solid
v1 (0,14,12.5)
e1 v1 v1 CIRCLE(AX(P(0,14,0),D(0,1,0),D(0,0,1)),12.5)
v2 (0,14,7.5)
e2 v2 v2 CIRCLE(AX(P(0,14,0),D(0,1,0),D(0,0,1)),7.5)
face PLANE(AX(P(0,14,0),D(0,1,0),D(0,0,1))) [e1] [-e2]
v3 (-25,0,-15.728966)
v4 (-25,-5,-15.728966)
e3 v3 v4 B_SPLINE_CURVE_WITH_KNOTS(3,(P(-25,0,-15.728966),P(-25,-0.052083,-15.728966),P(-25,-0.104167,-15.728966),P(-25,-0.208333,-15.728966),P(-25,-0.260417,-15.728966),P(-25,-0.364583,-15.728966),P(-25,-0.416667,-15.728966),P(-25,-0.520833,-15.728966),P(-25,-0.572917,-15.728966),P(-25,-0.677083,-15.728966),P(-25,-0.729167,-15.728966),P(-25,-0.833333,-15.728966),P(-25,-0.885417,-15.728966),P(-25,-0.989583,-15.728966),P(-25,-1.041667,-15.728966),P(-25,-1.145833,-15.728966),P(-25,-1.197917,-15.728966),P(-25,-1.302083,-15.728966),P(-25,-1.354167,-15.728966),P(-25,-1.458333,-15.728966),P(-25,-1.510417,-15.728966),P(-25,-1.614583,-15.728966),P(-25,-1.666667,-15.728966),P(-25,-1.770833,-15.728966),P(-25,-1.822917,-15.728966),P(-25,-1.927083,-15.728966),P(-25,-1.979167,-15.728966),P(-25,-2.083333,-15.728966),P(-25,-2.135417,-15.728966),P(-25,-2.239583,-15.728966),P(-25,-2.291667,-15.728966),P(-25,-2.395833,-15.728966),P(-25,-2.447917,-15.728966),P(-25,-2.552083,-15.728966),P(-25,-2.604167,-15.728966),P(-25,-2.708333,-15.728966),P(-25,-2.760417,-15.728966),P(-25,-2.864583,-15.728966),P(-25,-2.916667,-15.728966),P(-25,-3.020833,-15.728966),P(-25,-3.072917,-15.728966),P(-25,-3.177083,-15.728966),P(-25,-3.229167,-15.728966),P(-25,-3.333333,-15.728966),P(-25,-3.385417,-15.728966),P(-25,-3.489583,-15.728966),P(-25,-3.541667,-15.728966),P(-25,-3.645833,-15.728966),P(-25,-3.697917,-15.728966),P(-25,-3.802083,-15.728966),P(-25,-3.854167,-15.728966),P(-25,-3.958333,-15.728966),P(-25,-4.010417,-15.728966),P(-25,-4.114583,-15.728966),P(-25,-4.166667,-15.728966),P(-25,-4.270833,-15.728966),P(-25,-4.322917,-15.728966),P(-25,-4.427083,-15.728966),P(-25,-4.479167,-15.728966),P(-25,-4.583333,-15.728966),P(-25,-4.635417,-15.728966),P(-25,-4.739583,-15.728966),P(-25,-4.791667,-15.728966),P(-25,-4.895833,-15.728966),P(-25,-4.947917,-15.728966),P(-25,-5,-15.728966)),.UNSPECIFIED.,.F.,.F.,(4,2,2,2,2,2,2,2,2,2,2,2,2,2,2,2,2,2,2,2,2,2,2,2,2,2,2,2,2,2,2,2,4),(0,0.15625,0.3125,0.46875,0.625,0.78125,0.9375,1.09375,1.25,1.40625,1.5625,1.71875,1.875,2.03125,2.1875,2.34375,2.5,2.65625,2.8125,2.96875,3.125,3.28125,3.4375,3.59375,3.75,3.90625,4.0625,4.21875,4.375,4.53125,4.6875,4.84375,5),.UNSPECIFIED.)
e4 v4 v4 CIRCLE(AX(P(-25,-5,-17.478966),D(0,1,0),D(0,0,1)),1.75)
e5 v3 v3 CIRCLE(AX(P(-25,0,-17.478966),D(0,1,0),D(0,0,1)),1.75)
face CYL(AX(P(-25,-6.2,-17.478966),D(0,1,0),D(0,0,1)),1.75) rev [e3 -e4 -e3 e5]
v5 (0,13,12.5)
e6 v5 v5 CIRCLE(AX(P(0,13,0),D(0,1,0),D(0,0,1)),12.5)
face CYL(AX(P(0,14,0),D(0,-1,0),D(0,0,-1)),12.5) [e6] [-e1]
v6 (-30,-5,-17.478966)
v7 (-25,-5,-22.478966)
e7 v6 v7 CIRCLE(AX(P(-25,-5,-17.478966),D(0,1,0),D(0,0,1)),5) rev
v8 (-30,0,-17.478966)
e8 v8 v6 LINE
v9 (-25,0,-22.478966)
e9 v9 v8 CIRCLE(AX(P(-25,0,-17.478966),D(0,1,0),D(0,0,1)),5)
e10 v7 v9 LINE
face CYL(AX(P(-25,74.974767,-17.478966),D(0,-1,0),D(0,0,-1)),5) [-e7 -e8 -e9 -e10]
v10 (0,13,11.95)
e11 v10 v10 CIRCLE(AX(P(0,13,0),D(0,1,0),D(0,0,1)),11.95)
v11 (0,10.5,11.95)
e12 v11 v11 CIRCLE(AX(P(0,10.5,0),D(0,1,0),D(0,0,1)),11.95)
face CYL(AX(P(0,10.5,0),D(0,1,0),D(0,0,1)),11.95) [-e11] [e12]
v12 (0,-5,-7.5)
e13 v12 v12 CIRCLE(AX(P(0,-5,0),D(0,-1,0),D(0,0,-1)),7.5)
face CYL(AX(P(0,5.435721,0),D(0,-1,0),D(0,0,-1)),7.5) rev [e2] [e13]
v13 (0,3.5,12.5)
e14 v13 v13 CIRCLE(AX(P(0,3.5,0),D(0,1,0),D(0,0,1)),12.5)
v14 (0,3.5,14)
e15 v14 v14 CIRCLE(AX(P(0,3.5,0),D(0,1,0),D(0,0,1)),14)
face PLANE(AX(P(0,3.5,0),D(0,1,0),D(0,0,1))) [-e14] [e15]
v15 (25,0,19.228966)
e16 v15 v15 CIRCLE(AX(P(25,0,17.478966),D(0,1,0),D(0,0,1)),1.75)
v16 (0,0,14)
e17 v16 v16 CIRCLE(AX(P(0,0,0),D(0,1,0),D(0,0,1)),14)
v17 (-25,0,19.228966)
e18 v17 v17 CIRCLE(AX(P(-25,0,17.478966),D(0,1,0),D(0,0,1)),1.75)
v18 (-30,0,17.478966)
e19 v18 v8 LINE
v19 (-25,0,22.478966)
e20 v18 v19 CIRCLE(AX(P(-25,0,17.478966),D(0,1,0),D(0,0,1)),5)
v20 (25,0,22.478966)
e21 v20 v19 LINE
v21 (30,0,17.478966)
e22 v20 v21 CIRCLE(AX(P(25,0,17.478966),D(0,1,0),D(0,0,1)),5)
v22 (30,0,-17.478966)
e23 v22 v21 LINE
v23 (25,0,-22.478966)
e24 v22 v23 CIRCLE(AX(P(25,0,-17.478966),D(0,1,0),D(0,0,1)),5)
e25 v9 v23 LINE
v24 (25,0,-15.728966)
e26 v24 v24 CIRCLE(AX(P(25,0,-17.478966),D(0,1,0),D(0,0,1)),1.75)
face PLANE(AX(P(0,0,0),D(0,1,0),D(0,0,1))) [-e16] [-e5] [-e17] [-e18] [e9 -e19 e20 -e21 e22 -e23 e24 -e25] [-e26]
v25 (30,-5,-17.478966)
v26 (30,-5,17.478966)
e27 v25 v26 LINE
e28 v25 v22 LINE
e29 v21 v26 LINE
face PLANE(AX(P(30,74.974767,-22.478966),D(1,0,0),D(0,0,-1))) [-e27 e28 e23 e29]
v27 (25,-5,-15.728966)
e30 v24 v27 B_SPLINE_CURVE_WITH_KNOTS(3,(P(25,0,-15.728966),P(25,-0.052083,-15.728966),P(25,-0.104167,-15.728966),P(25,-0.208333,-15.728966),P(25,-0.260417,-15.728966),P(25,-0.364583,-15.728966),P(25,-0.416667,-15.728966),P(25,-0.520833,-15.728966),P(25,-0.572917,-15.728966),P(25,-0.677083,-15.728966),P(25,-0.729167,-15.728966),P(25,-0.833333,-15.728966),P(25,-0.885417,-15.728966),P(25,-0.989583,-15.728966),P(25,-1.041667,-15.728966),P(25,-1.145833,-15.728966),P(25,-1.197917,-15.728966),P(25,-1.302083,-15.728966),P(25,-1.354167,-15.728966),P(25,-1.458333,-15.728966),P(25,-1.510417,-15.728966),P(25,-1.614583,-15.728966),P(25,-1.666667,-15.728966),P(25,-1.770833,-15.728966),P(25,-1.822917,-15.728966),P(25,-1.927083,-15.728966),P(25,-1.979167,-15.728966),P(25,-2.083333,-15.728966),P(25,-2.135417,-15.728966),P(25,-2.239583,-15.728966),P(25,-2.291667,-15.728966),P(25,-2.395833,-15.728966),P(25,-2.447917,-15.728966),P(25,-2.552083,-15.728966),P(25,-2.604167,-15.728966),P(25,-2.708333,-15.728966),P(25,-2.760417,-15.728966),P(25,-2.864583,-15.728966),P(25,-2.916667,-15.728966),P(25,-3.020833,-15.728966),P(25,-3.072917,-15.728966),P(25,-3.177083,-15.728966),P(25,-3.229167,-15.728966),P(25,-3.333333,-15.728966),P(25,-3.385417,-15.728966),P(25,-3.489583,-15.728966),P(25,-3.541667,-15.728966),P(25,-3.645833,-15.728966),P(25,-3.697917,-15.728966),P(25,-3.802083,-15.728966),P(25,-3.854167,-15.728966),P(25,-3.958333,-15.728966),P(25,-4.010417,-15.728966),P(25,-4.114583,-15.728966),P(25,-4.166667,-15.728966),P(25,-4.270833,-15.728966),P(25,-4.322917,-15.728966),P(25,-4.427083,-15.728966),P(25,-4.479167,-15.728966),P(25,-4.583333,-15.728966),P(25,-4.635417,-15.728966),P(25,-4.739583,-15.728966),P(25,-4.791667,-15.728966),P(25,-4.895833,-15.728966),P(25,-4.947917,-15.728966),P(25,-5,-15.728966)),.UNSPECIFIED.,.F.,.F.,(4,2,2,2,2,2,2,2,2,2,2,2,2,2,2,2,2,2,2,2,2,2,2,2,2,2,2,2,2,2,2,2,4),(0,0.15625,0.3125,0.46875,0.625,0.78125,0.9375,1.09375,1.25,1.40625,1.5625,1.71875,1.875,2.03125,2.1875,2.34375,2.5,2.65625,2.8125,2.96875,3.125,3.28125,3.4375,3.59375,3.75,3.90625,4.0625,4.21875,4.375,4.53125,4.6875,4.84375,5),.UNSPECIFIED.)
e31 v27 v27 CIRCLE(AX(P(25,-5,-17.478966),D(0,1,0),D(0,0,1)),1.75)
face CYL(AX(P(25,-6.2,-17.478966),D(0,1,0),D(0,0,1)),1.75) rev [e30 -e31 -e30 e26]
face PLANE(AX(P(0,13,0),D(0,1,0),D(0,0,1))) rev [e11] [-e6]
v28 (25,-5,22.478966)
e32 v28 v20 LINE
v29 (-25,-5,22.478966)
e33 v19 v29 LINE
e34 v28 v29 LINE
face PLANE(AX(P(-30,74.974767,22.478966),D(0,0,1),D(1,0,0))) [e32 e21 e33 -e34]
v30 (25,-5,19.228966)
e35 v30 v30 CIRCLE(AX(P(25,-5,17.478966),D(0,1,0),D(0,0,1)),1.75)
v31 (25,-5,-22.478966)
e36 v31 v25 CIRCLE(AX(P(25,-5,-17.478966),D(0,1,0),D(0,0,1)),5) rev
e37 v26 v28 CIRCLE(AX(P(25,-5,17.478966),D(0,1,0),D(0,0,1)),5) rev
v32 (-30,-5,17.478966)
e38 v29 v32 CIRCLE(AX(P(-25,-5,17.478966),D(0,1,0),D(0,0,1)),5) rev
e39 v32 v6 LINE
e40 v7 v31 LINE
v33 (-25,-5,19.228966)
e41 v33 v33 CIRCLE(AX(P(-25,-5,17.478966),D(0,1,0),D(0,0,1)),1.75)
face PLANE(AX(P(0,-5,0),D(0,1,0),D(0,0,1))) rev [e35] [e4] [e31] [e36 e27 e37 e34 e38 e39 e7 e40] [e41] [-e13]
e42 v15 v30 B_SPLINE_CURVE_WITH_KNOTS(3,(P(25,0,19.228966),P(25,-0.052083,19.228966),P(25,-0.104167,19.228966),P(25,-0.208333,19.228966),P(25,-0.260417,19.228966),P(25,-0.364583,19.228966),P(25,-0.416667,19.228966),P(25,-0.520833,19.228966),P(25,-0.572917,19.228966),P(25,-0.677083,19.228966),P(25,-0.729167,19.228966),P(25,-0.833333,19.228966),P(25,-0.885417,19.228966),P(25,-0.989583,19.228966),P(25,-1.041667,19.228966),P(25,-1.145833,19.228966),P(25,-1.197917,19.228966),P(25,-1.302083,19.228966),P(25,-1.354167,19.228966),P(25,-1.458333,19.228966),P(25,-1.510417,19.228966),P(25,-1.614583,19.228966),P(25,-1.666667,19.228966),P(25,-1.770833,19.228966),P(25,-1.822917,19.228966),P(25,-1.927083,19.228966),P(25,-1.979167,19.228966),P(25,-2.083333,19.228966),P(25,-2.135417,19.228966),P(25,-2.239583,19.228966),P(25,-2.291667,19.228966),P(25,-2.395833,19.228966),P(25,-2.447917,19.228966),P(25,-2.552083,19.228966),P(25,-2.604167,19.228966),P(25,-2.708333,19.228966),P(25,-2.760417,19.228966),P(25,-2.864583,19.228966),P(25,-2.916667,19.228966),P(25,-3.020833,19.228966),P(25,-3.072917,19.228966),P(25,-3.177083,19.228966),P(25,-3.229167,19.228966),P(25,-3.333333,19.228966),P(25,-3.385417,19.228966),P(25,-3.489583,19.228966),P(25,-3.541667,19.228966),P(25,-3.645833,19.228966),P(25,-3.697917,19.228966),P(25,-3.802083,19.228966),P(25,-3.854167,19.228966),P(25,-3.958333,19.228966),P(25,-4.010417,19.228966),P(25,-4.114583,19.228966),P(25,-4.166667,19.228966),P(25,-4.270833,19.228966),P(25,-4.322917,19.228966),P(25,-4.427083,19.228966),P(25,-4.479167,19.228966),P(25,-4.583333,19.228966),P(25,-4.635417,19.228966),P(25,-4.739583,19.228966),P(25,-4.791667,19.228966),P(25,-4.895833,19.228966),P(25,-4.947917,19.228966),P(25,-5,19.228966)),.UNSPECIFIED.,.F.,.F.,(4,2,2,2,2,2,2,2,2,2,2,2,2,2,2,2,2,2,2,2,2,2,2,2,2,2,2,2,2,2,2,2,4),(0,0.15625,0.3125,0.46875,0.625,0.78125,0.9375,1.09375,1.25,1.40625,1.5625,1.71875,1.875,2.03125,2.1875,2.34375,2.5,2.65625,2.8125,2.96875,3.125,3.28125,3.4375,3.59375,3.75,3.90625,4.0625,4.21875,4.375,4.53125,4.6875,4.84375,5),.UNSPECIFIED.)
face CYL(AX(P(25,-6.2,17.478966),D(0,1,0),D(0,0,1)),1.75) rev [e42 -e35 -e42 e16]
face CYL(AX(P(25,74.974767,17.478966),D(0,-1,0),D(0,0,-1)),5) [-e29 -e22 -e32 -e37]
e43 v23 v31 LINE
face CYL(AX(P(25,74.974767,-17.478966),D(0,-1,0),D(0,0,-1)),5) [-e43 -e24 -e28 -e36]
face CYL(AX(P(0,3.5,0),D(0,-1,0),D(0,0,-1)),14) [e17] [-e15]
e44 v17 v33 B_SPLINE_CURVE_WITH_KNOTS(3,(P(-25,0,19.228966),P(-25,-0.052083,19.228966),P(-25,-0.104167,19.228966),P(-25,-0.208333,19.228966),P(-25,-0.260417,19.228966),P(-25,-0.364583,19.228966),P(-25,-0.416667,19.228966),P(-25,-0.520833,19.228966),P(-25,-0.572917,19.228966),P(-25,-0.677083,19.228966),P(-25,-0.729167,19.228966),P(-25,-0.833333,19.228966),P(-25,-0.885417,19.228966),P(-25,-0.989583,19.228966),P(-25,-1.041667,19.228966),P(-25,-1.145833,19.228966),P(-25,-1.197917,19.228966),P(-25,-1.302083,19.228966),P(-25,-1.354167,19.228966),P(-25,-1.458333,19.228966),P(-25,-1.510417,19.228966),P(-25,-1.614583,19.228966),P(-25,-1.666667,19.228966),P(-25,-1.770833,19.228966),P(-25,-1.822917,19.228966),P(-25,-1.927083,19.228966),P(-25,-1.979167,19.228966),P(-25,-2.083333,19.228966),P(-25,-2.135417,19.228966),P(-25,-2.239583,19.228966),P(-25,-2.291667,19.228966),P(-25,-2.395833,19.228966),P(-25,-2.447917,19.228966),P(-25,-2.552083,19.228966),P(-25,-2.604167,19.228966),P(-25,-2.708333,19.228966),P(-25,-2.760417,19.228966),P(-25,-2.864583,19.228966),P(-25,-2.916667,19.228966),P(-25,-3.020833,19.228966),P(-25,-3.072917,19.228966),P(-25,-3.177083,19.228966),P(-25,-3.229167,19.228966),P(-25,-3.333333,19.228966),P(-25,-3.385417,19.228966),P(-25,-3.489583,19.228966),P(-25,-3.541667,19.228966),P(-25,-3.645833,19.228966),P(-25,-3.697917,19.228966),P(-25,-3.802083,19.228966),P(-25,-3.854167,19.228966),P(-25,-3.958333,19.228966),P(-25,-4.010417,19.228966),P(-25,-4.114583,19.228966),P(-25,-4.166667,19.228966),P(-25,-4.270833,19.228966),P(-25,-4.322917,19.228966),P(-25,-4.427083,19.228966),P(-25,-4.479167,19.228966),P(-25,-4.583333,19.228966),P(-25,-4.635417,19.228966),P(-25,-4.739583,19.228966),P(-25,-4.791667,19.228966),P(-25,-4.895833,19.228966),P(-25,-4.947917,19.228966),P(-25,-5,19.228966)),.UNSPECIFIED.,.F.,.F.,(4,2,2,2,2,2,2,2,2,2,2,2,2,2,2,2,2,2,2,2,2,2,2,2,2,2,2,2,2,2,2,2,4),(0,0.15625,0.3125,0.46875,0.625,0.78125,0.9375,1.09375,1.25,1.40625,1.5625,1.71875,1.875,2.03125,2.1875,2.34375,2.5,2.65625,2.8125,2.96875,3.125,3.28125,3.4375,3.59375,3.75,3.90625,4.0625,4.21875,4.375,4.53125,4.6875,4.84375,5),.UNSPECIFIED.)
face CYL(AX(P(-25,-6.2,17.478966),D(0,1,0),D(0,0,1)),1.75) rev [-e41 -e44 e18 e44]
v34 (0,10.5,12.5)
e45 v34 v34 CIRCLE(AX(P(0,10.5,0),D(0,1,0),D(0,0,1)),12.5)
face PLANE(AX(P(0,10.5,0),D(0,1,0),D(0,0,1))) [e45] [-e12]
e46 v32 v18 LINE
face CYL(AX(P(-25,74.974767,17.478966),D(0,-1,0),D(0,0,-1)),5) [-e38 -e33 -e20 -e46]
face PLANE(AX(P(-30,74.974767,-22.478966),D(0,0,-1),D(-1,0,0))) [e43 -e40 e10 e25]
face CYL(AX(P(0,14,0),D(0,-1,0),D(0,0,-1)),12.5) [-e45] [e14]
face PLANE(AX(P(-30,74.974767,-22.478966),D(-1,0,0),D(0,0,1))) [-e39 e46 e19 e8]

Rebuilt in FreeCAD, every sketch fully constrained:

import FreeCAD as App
import Part
import Sketcher
from FreeCAD import Vector


def edges_at(feature, points):
    """Names of the edges that pass closest to the given points."""
    edges = feature.Shape.Edges
    near = lambda p: min(range(len(edges)), key=lambda i: edges[i].distToShape(Part.Vertex(*p))[0])
    return sorted({f"Edge{near(p) + 1}" for p in points})

doc = App.newDocument("Part")
body = doc.addObject("PartDesign::Body", "Body")

sketch1 = body.newObject("Sketcher::SketchObject", "Sketch")
sketch1.AttachmentSupport = (doc.getObject("XZ_Plane"), [""])
sketch1.MapMode = "FlatFace"
sketch1.addGeometry(Part.Circle(Vector(0, 0, 0), Vector(0, 0, 1), 12), False)
sketch1.addGeometry(Part.Circle(Vector(0, 0, 0), Vector(0, 0, 1), 10), False)
sketch1.addConstraint(Sketcher.Constraint("Coincident", 0, 3, -1, 1))
sketch1.addConstraint(Sketcher.Constraint("Coincident", 1, 3, -1, 1))
sketch1.addConstraint(Sketcher.Constraint("Diameter", 0, 25.0))
sketch1.addConstraint(Sketcher.Constraint("Diameter", 1, 19.0))
pad1 = body.newObject("PartDesign::Pad", "Pad")
pad1.Profile = sketch1
pad1.Length = 14
pad1.Reversed = True

sketch2 = body.newObject("Sketcher::SketchObject", "Sketch001")
sketch2.AttachmentSupport = (doc.getObject("XZ_Plane"), [""])
sketch2.MapMode = "FlatFace"
sketch2.addGeometry(Part.LineSegment(Vector(32, -24, 0), Vector(32, 24, 0)), False)
sketch2.addGeometry(Part.LineSegment(Vector(32, 24, 0), Vector(-32, 24, 0)), False)
sketch2.addGeometry(Part.LineSegment(Vector(-32, 24, 0), Vector(-32, -24, 0)), False)
sketch2.addGeometry(Part.LineSegment(Vector(-32, -24, 0), Vector(32, -24, 0)), False)
sketch2.addConstraint(Sketcher.Constraint("Coincident", 0, 2, 1, 1))
sketch2.addConstraint(Sketcher.Constraint("Coincident", 1, 2, 2, 1))
sketch2.addConstraint(Sketcher.Constraint("Coincident", 2, 2, 3, 1))
sketch2.addConstraint(Sketcher.Constraint("Coincident", 3, 2, 0, 1))
sketch2.addConstraint(Sketcher.Constraint("Vertical", 0))
sketch2.addConstraint(Sketcher.Constraint("Horizontal", 1))
sketch2.addConstraint(Sketcher.Constraint("Vertical", 2))
sketch2.addConstraint(Sketcher.Constraint("Horizontal", 3))
sketch2.addConstraint(Sketcher.Constraint("Symmetric", 0, 2, 2, 2, -1, 1))
sketch2.addConstraint(Sketcher.Constraint("DistanceX", 1, 2, 1, 1, 64.506169))
sketch2.addConstraint(Sketcher.Constraint("DistanceY", 0, 1, 0, 2, 47.833805))
pad2 = body.newObject("PartDesign::Pad", "Pad001")
pad2.Profile = sketch2
pad2.Length = 5

sketch3 = body.newObject("Sketcher::SketchObject", "Sketch002")
sketch3.AttachmentSupport = (doc.getObject("XZ_Plane"), [""])
sketch3.MapMode = "FlatFace"
sketch3.addGeometry(Part.Circle(Vector(0, 0, 0), Vector(0, 0, 1), 8), False)
sketch3.addConstraint(Sketcher.Constraint("Coincident", 0, 3, -1, 1))
sketch3.addConstraint(Sketcher.Constraint("Diameter", 0, 15.0))
pocket1 = body.newObject("PartDesign::Pocket", "Pocket")
pocket1.Profile = sketch3
pocket1.Length = 5
pocket1.Reversed = True
doc.recompute()

fillet = body.newObject("PartDesign::Fillet", "Fillet")
fillet.Base = (pocket1, edges_at(pocket1, [
    (32.253, -2.5, -23.917),
    (32.253, -2.5, 23.917),
    (-32.253, -2.5, 23.917),
    (-32.253, -2.5, -23.917),
]))
fillet.Radius = 10

sketch4 = body.newObject("Sketcher::SketchObject", "Sketch003")
sketch4.AttachmentSupport = (doc.getObject("XZ_Plane"), [""])
sketch4.MapMode = "FlatFace"
sketch4.addGeometry(Part.Circle(Vector(0, 0, 0), Vector(0, 0, 1), 41), False)
sketch4.addGeometry(Part.Circle(Vector(0, 0, 0), Vector(0, 0, 1), 22), False)
sketch4.addConstraint(Sketcher.Constraint("Coincident", 0, 3, -1, 1))
sketch4.addConstraint(Sketcher.Constraint("Coincident", 1, 3, -1, 1))
sketch4.addConstraint(Sketcher.Constraint("Diameter", 0, 82.678318))
sketch4.addConstraint(Sketcher.Constraint("Diameter", 1, 44.957933))
pocket2 = body.newObject("PartDesign::Pocket", "Pocket001")
pocket2.Profile = sketch4
pocket2.Length = 10
pocket2.Reversed = True

sketch5 = body.newObject("Sketcher::SketchObject", "Sketch004")
sketch5.AttachmentSupport = (doc.getObject("XZ_Plane"), [""])
sketch5.MapMode = "FlatFace"
sketch5.AttachmentOffset = App.Placement(Vector(0, 0, 5), App.Rotation())
sketch5.addGeometry(Part.LineSegment(Vector(30, -22, 0), Vector(30, 22, 0)), False)
sketch5.addGeometry(Part.LineSegment(Vector(30, 22, 0), Vector(-30, 22, 0)), False)
sketch5.addGeometry(Part.LineSegment(Vector(-30, 22, 0), Vector(-30, -22, 0)), False)
sketch5.addGeometry(Part.LineSegment(Vector(-30, -22, 0), Vector(30, -22, 0)), False)
sketch5.addGeometry(Part.Circle(Vector(0, 0, 0), Vector(0, 0, 1), 6), False)
sketch5.addConstraint(Sketcher.Constraint("Coincident", 0, 2, 1, 1))
sketch5.addConstraint(Sketcher.Constraint("Coincident", 1, 2, 2, 1))
sketch5.addConstraint(Sketcher.Constraint("Coincident", 2, 2, 3, 1))
sketch5.addConstraint(Sketcher.Constraint("Coincident", 3, 2, 0, 1))
sketch5.addConstraint(Sketcher.Constraint("Vertical", 0))
sketch5.addConstraint(Sketcher.Constraint("Horizontal", 1))
sketch5.addConstraint(Sketcher.Constraint("Vertical", 2))
sketch5.addConstraint(Sketcher.Constraint("Horizontal", 3))
sketch5.addConstraint(Sketcher.Constraint("Coincident", 4, 3, -1, 1))
sketch5.addConstraint(Sketcher.Constraint("Symmetric", 0, 2, 2, 2, -1, 1))
sketch5.addConstraint(Sketcher.Constraint("Diameter", 4, 12.0))
sketch5.addConstraint(Sketcher.Constraint("DistanceX", 1, 2, 1, 1, 60.0))
sketch5.addConstraint(Sketcher.Constraint("DistanceY", 0, 1, 0, 2, 44.957933))
pad3 = body.newObject("PartDesign::Pad", "Pad002")
pad3.Profile = sketch5
pad3.Length = 5
pad3.Reversed = True
doc.recompute()

fillet2 = body.newObject("PartDesign::Fillet", "Fillet001")
fillet2.Base = (pad3, edges_at(pad3, [
    (30, -2.5, -22.479),
    (-30, -2.5, 22.479),
    (30, -2.5, 22.479),
    (-30, -2.5, -22.479),
]))
fillet2.Radius = 5

sketch6 = body.newObject("Sketcher::SketchObject", "Sketch005")
sketch6.AttachmentSupport = (doc.getObject("XZ_Plane"), [""])
sketch6.MapMode = "FlatFace"
sketch6.AttachmentOffset = App.Placement(Vector(0, 0, 5), App.Rotation())
sketch6.addGeometry(Part.Circle(Vector(0, 0, 0), Vector(0, 0, 1), 8), False)
sketch6.addConstraint(Sketcher.Constraint("Coincident", 0, 3, -1, 1))
sketch6.addConstraint(Sketcher.Constraint("Diameter", 0, 15.0))
pocket3 = body.newObject("PartDesign::Pocket", "Pocket002")
pocket3.Profile = sketch6
pocket3.Length = 10.435721

sketch7 = body.newObject("Sketcher::SketchObject", "Sketch006")
sketch7.AttachmentSupport = (doc.getObject("XZ_Plane"), [""])
sketch7.MapMode = "FlatFace"
sketch7.addGeometry(Part.Circle(Vector(0, 0, 0), Vector(0, 0, 1), 14), False)
sketch7.addGeometry(Part.Circle(Vector(0, 0, 0), Vector(0, 0, 1), 12), False)
sketch7.addConstraint(Sketcher.Constraint("Coincident", 0, 3, -1, 1))
sketch7.addConstraint(Sketcher.Constraint("Coincident", 1, 3, -1, 1))
sketch7.addConstraint(Sketcher.Constraint("Diameter", 0, 28.0))
sketch7.addConstraint(Sketcher.Constraint("Diameter", 1, 25.0))
pad4 = body.newObject("PartDesign::Pad", "Pad003")
pad4.Profile = sketch7
pad4.Length = 3.5
pad4.Reversed = True

sketch8 = body.newObject("Sketcher::SketchObject", "Sketch007")
sketch8.AttachmentSupport = (doc.getObject("XZ_Plane"), [""])
sketch8.MapMode = "FlatFace"
sketch8.AttachmentOffset = App.Placement(Vector(0, 0, -13), App.Rotation())
sketch8.addGeometry(Part.Circle(Vector(0, 0, 0), Vector(0, 0, 1), 13), False)
sketch8.addGeometry(Part.Circle(Vector(0, 0, 0), Vector(0, 0, 1), 12), False)
sketch8.addConstraint(Sketcher.Constraint("Coincident", 0, 3, -1, 1))
sketch8.addConstraint(Sketcher.Constraint("Coincident", 1, 3, -1, 1))
sketch8.addConstraint(Sketcher.Constraint("Diameter", 1, 23.9))
sketch8.addConstraint(Sketcher.Constraint("Diameter", 0, 26.351829))
pocket4 = body.newObject("PartDesign::Pocket", "Pocket003")
pocket4.Profile = sketch8
pocket4.Length = 2.5
pocket4.Reversed = True

sketch9 = body.newObject("Sketcher::SketchObject", "Sketch008")
sketch9.AttachmentSupport = (doc.getObject("XZ_Plane"), [""])
sketch9.MapMode = "FlatFace"
sketch9.addGeometry(Part.Circle(Vector(0, 0, 0), Vector(0, 0, 1), 10), False)
sketch9.addGeometry(Part.Circle(Vector(0, 0, 0), Vector(0, 0, 1), 8), False)
sketch9.addConstraint(Sketcher.Constraint("Coincident", 0, 3, -1, 1))
sketch9.addConstraint(Sketcher.Constraint("Coincident", 1, 3, -1, 1))
sketch9.addConstraint(Sketcher.Constraint("Diameter", 0, 19.0))
sketch9.addConstraint(Sketcher.Constraint("Diameter", 1, 15.0))
pad5 = body.newObject("PartDesign::Pad", "Pad004")
pad5.Profile = sketch9
pad5.Length = 14
pad5.Reversed = True

sketch10 = body.newObject("Sketcher::SketchObject", "Sketch009")
sketch10.AttachmentSupport = (doc.getObject("XZ_Plane"), [""])
sketch10.MapMode = "FlatFace"
sketch10.addGeometry(Part.Circle(Vector(-25, -17.5, 0), Vector(0, 0, 1), 1.8), False)
sketch10.addGeometry(Part.Circle(Vector(25, -17.5, 0), Vector(0, 0, 1), 1.8), False)
sketch10.addGeometry(Part.Circle(Vector(25, 17.5, 0), Vector(0, 0, 1), 1.8), False)
sketch10.addGeometry(Part.Circle(Vector(-25, 17.5, 0), Vector(0, 0, 1), 1.8), False)
sketch10.addConstraint(Sketcher.Constraint("Equal", 0, 1))
sketch10.addConstraint(Sketcher.Constraint("Equal", 1, 2))
sketch10.addConstraint(Sketcher.Constraint("Equal", 2, 3))
sketch10.addConstraint(Sketcher.Constraint("Symmetric", 0, 3, 2, 3, -1, 1))
sketch10.addConstraint(Sketcher.Constraint("Symmetric", 1, 3, 3, 3, -1, 1))
sketch10.addConstraint(Sketcher.Constraint("Symmetric", 0, 3, 1, 3, -2))
sketch10.addConstraint(Sketcher.Constraint("Diameter", 0, 3.5))
sketch10.addConstraint(Sketcher.Constraint("DistanceX", 0, 3, -1, 1, 25.0))
sketch10.addConstraint(Sketcher.Constraint("DistanceY", 0, 3, -1, 1, 17.478966))
pocket5 = body.newObject("PartDesign::Pocket", "Pocket004")
pocket5.Profile = sketch10
pocket5.Length = 6.2
pocket5.Reversed = True

doc.recompute()
